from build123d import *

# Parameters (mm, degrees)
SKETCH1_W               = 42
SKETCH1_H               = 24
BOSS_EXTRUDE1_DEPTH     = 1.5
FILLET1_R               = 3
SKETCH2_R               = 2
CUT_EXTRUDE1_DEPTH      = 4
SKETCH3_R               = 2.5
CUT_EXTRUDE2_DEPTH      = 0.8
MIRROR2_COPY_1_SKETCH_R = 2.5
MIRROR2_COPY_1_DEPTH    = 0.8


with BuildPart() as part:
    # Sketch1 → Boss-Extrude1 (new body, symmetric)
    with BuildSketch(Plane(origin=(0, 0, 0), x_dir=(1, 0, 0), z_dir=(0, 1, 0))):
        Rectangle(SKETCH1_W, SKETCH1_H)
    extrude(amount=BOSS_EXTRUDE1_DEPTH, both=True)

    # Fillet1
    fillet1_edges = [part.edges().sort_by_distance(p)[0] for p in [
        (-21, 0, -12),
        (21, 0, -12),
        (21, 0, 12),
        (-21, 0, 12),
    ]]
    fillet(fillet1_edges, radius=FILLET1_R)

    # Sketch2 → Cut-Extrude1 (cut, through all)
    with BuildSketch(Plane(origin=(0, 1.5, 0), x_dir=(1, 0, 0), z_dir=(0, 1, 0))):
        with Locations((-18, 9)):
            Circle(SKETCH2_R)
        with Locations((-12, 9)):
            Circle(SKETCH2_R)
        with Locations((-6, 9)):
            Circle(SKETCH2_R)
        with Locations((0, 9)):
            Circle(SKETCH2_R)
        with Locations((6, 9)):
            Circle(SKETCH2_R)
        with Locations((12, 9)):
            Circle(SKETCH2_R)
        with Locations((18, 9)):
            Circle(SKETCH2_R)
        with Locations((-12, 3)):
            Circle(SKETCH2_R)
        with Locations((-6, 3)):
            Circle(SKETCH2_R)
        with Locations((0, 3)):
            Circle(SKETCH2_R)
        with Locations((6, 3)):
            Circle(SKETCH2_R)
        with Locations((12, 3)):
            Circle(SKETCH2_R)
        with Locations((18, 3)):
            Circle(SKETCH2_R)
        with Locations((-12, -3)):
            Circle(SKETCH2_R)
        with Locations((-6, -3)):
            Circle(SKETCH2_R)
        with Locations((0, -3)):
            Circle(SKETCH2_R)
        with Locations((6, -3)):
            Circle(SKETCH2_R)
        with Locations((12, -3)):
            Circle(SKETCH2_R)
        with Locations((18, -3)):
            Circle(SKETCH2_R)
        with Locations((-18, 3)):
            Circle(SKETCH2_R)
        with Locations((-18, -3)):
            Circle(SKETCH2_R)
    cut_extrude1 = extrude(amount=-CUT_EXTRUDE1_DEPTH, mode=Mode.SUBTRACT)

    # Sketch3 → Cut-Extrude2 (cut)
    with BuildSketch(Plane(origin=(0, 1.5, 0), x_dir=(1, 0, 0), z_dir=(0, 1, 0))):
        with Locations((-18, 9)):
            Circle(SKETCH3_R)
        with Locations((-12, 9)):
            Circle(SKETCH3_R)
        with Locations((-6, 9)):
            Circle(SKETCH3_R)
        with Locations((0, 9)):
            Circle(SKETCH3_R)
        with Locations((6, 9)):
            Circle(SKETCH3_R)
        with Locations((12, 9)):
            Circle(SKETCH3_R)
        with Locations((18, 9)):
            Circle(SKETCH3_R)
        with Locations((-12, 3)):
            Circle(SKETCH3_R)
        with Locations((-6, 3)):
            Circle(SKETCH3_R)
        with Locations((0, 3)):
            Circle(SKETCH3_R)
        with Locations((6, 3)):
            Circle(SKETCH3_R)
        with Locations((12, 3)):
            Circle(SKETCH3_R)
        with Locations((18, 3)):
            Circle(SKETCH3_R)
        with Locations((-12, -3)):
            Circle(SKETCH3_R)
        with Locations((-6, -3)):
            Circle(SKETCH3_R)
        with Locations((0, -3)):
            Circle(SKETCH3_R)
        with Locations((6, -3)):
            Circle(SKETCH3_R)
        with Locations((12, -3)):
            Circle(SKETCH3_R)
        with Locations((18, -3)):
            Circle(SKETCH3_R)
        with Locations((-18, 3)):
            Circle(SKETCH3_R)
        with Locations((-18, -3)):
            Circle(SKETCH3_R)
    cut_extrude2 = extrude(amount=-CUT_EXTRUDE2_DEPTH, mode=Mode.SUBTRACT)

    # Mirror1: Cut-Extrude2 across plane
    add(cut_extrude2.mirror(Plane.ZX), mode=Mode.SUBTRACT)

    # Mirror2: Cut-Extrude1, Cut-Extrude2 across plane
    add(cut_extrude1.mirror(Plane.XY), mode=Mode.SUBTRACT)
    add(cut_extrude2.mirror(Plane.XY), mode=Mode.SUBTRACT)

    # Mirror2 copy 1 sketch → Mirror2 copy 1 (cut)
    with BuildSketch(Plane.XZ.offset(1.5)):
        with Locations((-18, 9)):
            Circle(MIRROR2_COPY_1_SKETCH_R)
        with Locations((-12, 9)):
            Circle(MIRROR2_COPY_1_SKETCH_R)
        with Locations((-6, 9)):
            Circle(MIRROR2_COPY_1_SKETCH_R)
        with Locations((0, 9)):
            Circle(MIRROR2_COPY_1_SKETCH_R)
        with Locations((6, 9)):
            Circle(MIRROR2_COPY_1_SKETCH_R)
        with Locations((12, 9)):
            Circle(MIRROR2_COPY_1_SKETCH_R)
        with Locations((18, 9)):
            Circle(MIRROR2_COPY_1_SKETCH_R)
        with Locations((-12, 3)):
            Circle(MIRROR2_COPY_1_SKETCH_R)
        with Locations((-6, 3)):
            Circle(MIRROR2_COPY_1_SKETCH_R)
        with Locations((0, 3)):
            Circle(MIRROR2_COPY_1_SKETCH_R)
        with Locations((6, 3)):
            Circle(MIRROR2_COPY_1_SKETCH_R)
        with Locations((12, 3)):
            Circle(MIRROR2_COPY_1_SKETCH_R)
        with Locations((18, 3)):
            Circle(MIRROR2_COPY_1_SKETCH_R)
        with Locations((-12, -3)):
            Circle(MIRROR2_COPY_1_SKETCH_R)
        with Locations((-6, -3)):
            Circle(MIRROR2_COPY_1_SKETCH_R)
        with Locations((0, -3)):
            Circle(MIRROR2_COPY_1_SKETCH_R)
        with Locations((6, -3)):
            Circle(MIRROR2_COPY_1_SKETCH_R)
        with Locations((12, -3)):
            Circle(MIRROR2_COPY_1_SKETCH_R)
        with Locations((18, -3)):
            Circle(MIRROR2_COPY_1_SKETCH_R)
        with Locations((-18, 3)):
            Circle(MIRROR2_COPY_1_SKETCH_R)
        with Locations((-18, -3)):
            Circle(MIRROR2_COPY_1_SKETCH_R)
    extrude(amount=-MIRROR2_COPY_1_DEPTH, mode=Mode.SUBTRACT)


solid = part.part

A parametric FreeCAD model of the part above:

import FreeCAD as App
import Part
import Sketcher
Q = App.Units.Quantity


def edges_at(feature, points):
    """Names of the edges that pass closest to the given points."""
    edges = feature.Shape.Edges
    near = lambda p: min(range(len(edges)), key=lambda i: edges[i].distToShape(Part.Vertex(*p))[0])
    return sorted({f"Edge{near(p) + 1}" for p in points})

doc = App.newDocument("Part")
body = doc.addObject("PartDesign::Body", "Body")

sketch1 = doc.addObject("Sketcher::SketchObject", "Sketch")
body.addObject(sketch1)
sketch1.AttachmentSupport = (doc.XZ_Plane, [""])
sketch1.MapMode = "FlatFace"
sketch1.addGeometry([
    Part.LineSegment(App.Vector(-21, -12, 0), App.Vector(-21, 12, 0)),
    Part.LineSegment(App.Vector(-21, 12, 0), App.Vector(21, 12, 0)),
    Part.LineSegment(App.Vector(21, 12, 0), App.Vector(21, -12, 0)),
    Part.LineSegment(App.Vector(21, -12, 0), App.Vector(-21, -12, 0)),
], False)
sketch1.addConstraint([
    Sketcher.Constraint("Coincident", 0, 2, 1, 1),
    Sketcher.Constraint("Coincident", 1, 2, 2, 1),
    Sketcher.Constraint("Coincident", 2, 2, 3, 1),
    Sketcher.Constraint("Coincident", 3, 2, 0, 1),
    Sketcher.Constraint("Vertical", 0),
    Sketcher.Constraint("Horizontal", 1),
    Sketcher.Constraint("Vertical", 2),
    Sketcher.Constraint("Horizontal", 3),
    Sketcher.Constraint("Symmetric", 0, 2, 2, 2, -1, 1),
    Sketcher.Constraint("DistanceX", 1, 1, 1, 2, Q("42 mm")),
    Sketcher.Constraint("DistanceY", 0, 1, 0, 2, Q("24 mm")),
])
pad1 = doc.addObject("PartDesign::Pad", "Pad")
body.addObject(pad1)
pad1.Profile = sketch1
pad1.Length = 3
pad1.Midplane = True
doc.recompute()

fillet = doc.addObject("PartDesign::Fillet", "Fillet")
body.addObject(fillet)
fillet.Base = (pad1, edges_at(pad1, [
    (-21, 0, -12),
    (21, 0, -12),
    (21, 0, 12),
    (-21, 0, 12),
]))
fillet.Radius = 3

sketch2 = doc.addObject("Sketcher::SketchObject", "Sketch001")
body.addObject(sketch2)
sketch2.AttachmentSupport = (doc.XZ_Plane, [""])
sketch2.MapMode = "FlatFace"
sketch2.AttachmentOffset = App.Placement(App.Vector(0, 0, -1.5), App.Rotation())
sketch2.addGeometry([
    Part.Circle(App.Vector(-18, -9, 0), App.Vector(0, 0, 1), 2),
    Part.Circle(App.Vector(-12, -9, 0), App.Vector(0, 0, 1), 2),
    Part.Circle(App.Vector(-6, -9, 0), App.Vector(0, 0, 1), 2),
    Part.Circle(App.Vector(0, -9, 0), App.Vector(0, 0, 1), 2),
    Part.Circle(App.Vector(6, -9, 0), App.Vector(0, 0, 1), 2),
    Part.Circle(App.Vector(12, -9, 0), App.Vector(0, 0, 1), 2),
    Part.Circle(App.Vector(18, -9, 0), App.Vector(0, 0, 1), 2),
    Part.Circle(App.Vector(-12, -3, 0), App.Vector(0, 0, 1), 2),
    Part.Circle(App.Vector(-6, -3, 0), App.Vector(0, 0, 1), 2),
    Part.Circle(App.Vector(0, -3, 0), App.Vector(0, 0, 1), 2),
    Part.Circle(App.Vector(6, -3, 0), App.Vector(0, 0, 1), 2),
    Part.Circle(App.Vector(12, -3, 0), App.Vector(0, 0, 1), 2),
    Part.Circle(App.Vector(18, -3, 0), App.Vector(0, 0, 1), 2),
    Part.Circle(App.Vector(-12, 3, 0), App.Vector(0, 0, 1), 2),
    Part.Circle(App.Vector(-6, 3, 0), App.Vector(0, 0, 1), 2),
    Part.Circle(App.Vector(0, 3, 0), App.Vector(0, 0, 1), 2),
    Part.Circle(App.Vector(6, 3, 0), App.Vector(0, 0, 1), 2),
    Part.Circle(App.Vector(12, 3, 0), App.Vector(0, 0, 1), 2),
    Part.Circle(App.Vector(18, 3, 0), App.Vector(0, 0, 1), 2),
    Part.Circle(App.Vector(-18, -3, 0), App.Vector(0, 0, 1), 2),
    Part.Circle(App.Vector(-18, 3, 0), App.Vector(0, 0, 1), 2),
], False)
sketch2.addConstraint([
    Sketcher.Constraint("Equal", 0, 1),
    Sketcher.Constraint("Equal", 1, 2),
    Sketcher.Constraint("Equal", 2, 3),
    Sketcher.Constraint("Equal", 3, 4),
    Sketcher.Constraint("Equal", 4, 5),
    Sketcher.Constraint("Equal", 5, 6),
    Sketcher.Constraint("Equal", 6, 7),
    Sketcher.Constraint("Equal", 7, 8),
    Sketcher.Constraint("Equal", 8, 9),
    Sketcher.Constraint("Equal", 9, 10),
    Sketcher.Constraint("Equal", 10, 11),
    Sketcher.Constraint("Equal", 11, 12),
    Sketcher.Constraint("Equal", 12, 13),
    Sketcher.Constraint("Equal", 13, 14),
    Sketcher.Constraint("Equal", 14, 15),
    Sketcher.Constraint("Equal", 15, 16),
    Sketcher.Constraint("Equal", 16, 17),
    Sketcher.Constraint("Equal", 17, 18),
    Sketcher.Constraint("Equal", 18, 19),
    Sketcher.Constraint("Equal", 19, 20),
    Sketcher.Constraint("Symmetric", 11, 3, 13, 3, -1, 1),
    Sketcher.Constraint("Symmetric", 10, 3, 14, 3, -1, 1),
    Sketcher.Constraint("Symmetric", 9, 3, 15, 3, -1, 1),
    Sketcher.Constraint("Symmetric", 8, 3, 16, 3, -1, 1),
    Sketcher.Constraint("Symmetric", 7, 3, 17, 3, -1, 1),
    Sketcher.Constraint("Symmetric", 18, 3, 19, 3, -1, 1),
    Sketcher.Constraint("Symmetric", 12, 3, 20, 3, -1, 1),
    Sketcher.Constraint("Symmetric", 2, 3, 4, 3, -2),
    Sketcher.Constraint("Symmetric", 1, 3, 5, 3, -2),
    Sketcher.Constraint("Symmetric", 0, 3, 6, 3, -2),
    Sketcher.Constraint("Symmetric", 8, 3, 10, 3, -2),
    Sketcher.Constraint("Symmetric", 7, 3, 11, 3, -2),
    Sketcher.Constraint("Symmetric", 12, 3, 19, 3, -2),
    Sketcher.Constraint("PointOnObject", 3, 3, -2),
    Sketcher.Constraint("PointOnObject", 9, 3, -2),
    Sketcher.Constraint("Horizontal", 0, 3, 1, 3),
    Sketcher.Constraint("Horizontal", 1, 3, 2, 3),
    Sketcher.Constraint("Horizontal", 2, 3, 3, 3),
    Sketcher.Constraint("Horizontal", 7, 3, 8, 3),
    Sketcher.Constraint("Horizontal", 8, 3, 9, 3),
    Sketcher.Constraint("Horizontal", 11, 3, 12, 3),
    Sketcher.Constraint("Vertical", 1, 3, 7, 3),
    Sketcher.Constraint("Vertical", 2, 3, 8, 3),
    Sketcher.Constraint("Vertical", 6, 3, 12, 3),
    Sketcher.Constraint("Diameter", 0, Q("4 mm")),
    Sketcher.Constraint("DistanceX", 0, 3, -1, 1, Q("18 mm")),
    Sketcher.Constraint("DistanceY", 0, 3, -1, 1, Q("9 mm")),
    Sketcher.Constraint("DistanceX", 1, 3, -1, 1, Q("12 mm")),
    Sketcher.Constraint("DistanceX", 2, 3, -1, 1, Q("6 mm")),
    Sketcher.Constraint("DistanceY", 7, 3, -1, 1, Q("3 mm")),
])
pocket1 = doc.addObject("PartDesign::Pocket", "Pocket")
body.addObject(pocket1)
pocket1.Profile = sketch2
pocket1.Type = "ThroughAll"
pocket1.Reversed = True

sketch3 = doc.addObject("Sketcher::SketchObject", "Sketch002")
body.addObject(sketch3)
sketch3.AttachmentSupport = (doc.XZ_Plane, [""])
sketch3.MapMode = "FlatFace"
sketch3.AttachmentOffset = App.Placement(App.Vector(0, 0, -1.5), App.Rotation())
sketch3.addGeometry([
    Part.Circle(App.Vector(-18, -9, 0), App.Vector(0, 0, 1), 2.5),
    Part.Circle(App.Vector(-12, -9, 0), App.Vector(0, 0, 1), 2.5),
    Part.Circle(App.Vector(-6, -9, 0), App.Vector(0, 0, 1), 2.5),
    Part.Circle(App.Vector(0, -9, 0), App.Vector(0, 0, 1), 2.5),
    Part.Circle(App.Vector(6, -9, 0), App.Vector(0, 0, 1), 2.5),
    Part.Circle(App.Vector(12, -9, 0), App.Vector(0, 0, 1), 2.5),
    Part.Circle(App.Vector(18, -9, 0), App.Vector(0, 0, 1), 2.5),
    Part.Circle(App.Vector(-12, -3, 0), App.Vector(0, 0, 1), 2.5),
    Part.Circle(App.Vector(-6, -3, 0), App.Vector(0, 0, 1), 2.5),
    Part.Circle(App.Vector(0, -3, 0), App.Vector(0, 0, 1), 2.5),
    Part.Circle(App.Vector(6, -3, 0), App.Vector(0, 0, 1), 2.5),
    Part.Circle(App.Vector(12, -3, 0), App.Vector(0, 0, 1), 2.5),
    Part.Circle(App.Vector(18, -3, 0), App.Vector(0, 0, 1), 2.5),
    Part.Circle(App.Vector(-12, 3, 0), App.Vector(0, 0, 1), 2.5),
    Part.Circle(App.Vector(-6, 3, 0), App.Vector(0, 0, 1), 2.5),
    Part.Circle(App.Vector(0, 3, 0), App.Vector(0, 0, 1), 2.5),
    Part.Circle(App.Vector(6, 3, 0), App.Vector(0, 0, 1), 2.5),
    Part.Circle(App.Vector(12, 3, 0), App.Vector(0, 0, 1), 2.5),
    Part.Circle(App.Vector(18, 3, 0), App.Vector(0, 0, 1), 2.5),
    Part.Circle(App.Vector(-18, -3, 0), App.Vector(0, 0, 1), 2.5),
    Part.Circle(App.Vector(-18, 3, 0), App.Vector(0, 0, 1), 2.5),
], False)
sketch3.addConstraint([
    Sketcher.Constraint("Equal", 0, 1),
    Sketcher.Constraint("Equal", 1, 2),
    Sketcher.Constraint("Equal", 2, 3),
    Sketcher.Constraint("Equal", 3, 4),
    Sketcher.Constraint("Equal", 4, 5),
    Sketcher.Constraint("Equal", 5, 6),
    Sketcher.Constraint("Equal", 6, 7),
    Sketcher.Constraint("Equal", 7, 8),
    Sketcher.Constraint("Equal", 8, 9),
    Sketcher.Constraint("Equal", 9, 10),
    Sketcher.Constraint("Equal", 10, 11),
    Sketcher.Constraint("Equal", 11, 12),
    Sketcher.Constraint("Equal", 12, 13),
    Sketcher.Constraint("Equal", 13, 14),
    Sketcher.Constraint("Equal", 14, 15),
    Sketcher.Constraint("Equal", 15, 16),
    Sketcher.Constraint("Equal", 16, 17),
    Sketcher.Constraint("Equal", 17, 18),
    Sketcher.Constraint("Equal", 18, 19),
    Sketcher.Constraint("Equal", 19, 20),
    Sketcher.Constraint("Symmetric", 11, 3, 13, 3, -1, 1),
    Sketcher.Constraint("Symmetric", 10, 3, 14, 3, -1, 1),
    Sketcher.Constraint("Symmetric", 9, 3, 15, 3, -1, 1),
    Sketcher.Constraint("Symmetric", 8, 3, 16, 3, -1, 1),
    Sketcher.Constraint("Symmetric", 7, 3, 17, 3, -1, 1),
    Sketcher.Constraint("Symmetric", 18, 3, 19, 3, -1, 1),
    Sketcher.Constraint("Symmetric", 12, 3, 20, 3, -1, 1),
    Sketcher.Constraint("Symmetric", 2, 3, 4, 3, -2),
    Sketcher.Constraint("Symmetric", 1, 3, 5, 3, -2),
    Sketcher.Constraint("Symmetric", 0, 3, 6, 3, -2),
    Sketcher.Constraint("Symmetric", 8, 3, 10, 3, -2),
    Sketcher.Constraint("Symmetric", 7, 3, 11, 3, -2),
    Sketcher.Constraint("Symmetric", 12, 3, 19, 3, -2),
    Sketcher.Constraint("PointOnObject", 3, 3, -2),
    Sketcher.Constraint("PointOnObject", 9, 3, -2),
    Sketcher.Constraint("Horizontal", 0, 3, 1, 3),
    Sketcher.Constraint("Horizontal", 1, 3, 2, 3),
    Sketcher.Constraint("Horizontal", 2, 3, 3, 3),
    Sketcher.Constraint("Horizontal", 7, 3, 8, 3),
    Sketcher.Constraint("Horizontal", 8, 3, 9, 3),
    Sketcher.Constraint("Horizontal", 11, 3, 12, 3),
    Sketcher.Constraint("Vertical", 1, 3, 7, 3),
    Sketcher.Constraint("Vertical", 2, 3, 8, 3),
    Sketcher.Constraint("Vertical", 6, 3, 12, 3),
    Sketcher.Constraint("Diameter", 0, Q("5 mm")),
    Sketcher.Constraint("DistanceX", 0, 3, -1, 1, Q("18 mm")),
    Sketcher.Constraint("DistanceY", 0, 3, -1, 1, Q("9 mm")),
    Sketcher.Constraint("DistanceX", 1, 3, -1, 1, Q("12 mm")),
    Sketcher.Constraint("DistanceX", 2, 3, -1, 1, Q("6 mm")),
    Sketcher.Constraint("DistanceY", 7, 3, -1, 1, Q("3 mm")),
])
pocket2 = doc.addObject("PartDesign::Pocket", "Pocket001")
body.addObject(pocket2)
pocket2.Profile = sketch3
pocket2.Length = 0.8
pocket2.Reversed = True
doc.recompute()

mirrored = doc.addObject("PartDesign::Mirrored", "Mirrored")
body.addObject(mirrored)
mirrored.Originals = [pocket2]
mirrored.MirrorPlane = (doc.XZ_Plane, [""])
body.Tip = mirrored
doc.recompute()

mirrored2 = doc.addObject("PartDesign::Mirrored", "Mirrored001")
body.addObject(mirrored2)
mirrored2.Originals = [pocket1, pocket2]
mirrored2.MirrorPlane = (doc.XY_Plane, [""])
body.Tip = mirrored2

sketch4 = doc.addObject("Sketcher::SketchObject", "Sketch003")
body.addObject(sketch4)
sketch4.AttachmentSupport = (doc.XZ_Plane, [""])
sketch4.MapMode = "FlatFace"
sketch4.AttachmentOffset = App.Placement(App.Vector(0, 0, 1.5), App.Rotation())
sketch4.addGeometry([
    Part.Circle(App.Vector(-18, 9, 0), App.Vector(0, 0, 1), 2.5),
    Part.Circle(App.Vector(-12, 9, 0), App.Vector(0, 0, 1), 2.5),
    Part.Circle(App.Vector(-6, 9, 0), App.Vector(0, 0, 1), 2.5),
    Part.Circle(App.Vector(0, 9, 0), App.Vector(0, 0, 1), 2.5),
    Part.Circle(App.Vector(6, 9, 0), App.Vector(0, 0, 1), 2.5),
    Part.Circle(App.Vector(12, 9, 0), App.Vector(0, 0, 1), 2.5),
    Part.Circle(App.Vector(18, 9, 0), App.Vector(0, 0, 1), 2.5),
    Part.Circle(App.Vector(-12, 3, 0), App.Vector(0, 0, 1), 2.5),
    Part.Circle(App.Vector(-6, 3, 0), App.Vector(0, 0, 1), 2.5),
    Part.Circle(App.Vector(0, 3, 0), App.Vector(0, 0, 1), 2.5),
    Part.Circle(App.Vector(6, 3, 0), App.Vector(0, 0, 1), 2.5),
    Part.Circle(App.Vector(12, 3, 0), App.Vector(0, 0, 1), 2.5),
    Part.Circle(App.Vector(18, 3, 0), App.Vector(0, 0, 1), 2.5),
    Part.Circle(App.Vector(-12, -3, 0), App.Vector(0, 0, 1), 2.5),
    Part.Circle(App.Vector(-6, -3, 0), App.Vector(0, 0, 1), 2.5),
    Part.Circle(App.Vector(0, -3, 0), App.Vector(0, 0, 1), 2.5),
    Part.Circle(App.Vector(6, -3, 0), App.Vector(0, 0, 1), 2.5),
    Part.Circle(App.Vector(12, -3, 0), App.Vector(0, 0, 1), 2.5),
    Part.Circle(App.Vector(18, -3, 0), App.Vector(0, 0, 1), 2.5),
    Part.Circle(App.Vector(-18, 3, 0), App.Vector(0, 0, 1), 2.5),
    Part.Circle(App.Vector(-18, -3, 0), App.Vector(0, 0, 1), 2.5),
], False)
sketch4.addConstraint([
    Sketcher.Constraint("Equal", 0, 1),
    Sketcher.Constraint("Equal", 1, 2),
    Sketcher.Constraint("Equal", 2, 3),
    Sketcher.Constraint("Equal", 3, 4),
    Sketcher.Constraint("Equal", 4, 5),
    Sketcher.Constraint("Equal", 5, 6),
    Sketcher.Constraint("Equal", 6, 7),
    Sketcher.Constraint("Equal", 7, 8),
    Sketcher.Constraint("Equal", 8, 9),
    Sketcher.Constraint("Equal", 9, 10),
    Sketcher.Constraint("Equal", 10, 11),
    Sketcher.Constraint("Equal", 11, 12),
    Sketcher.Constraint("Equal", 12, 13),
    Sketcher.Constraint("Equal", 13, 14),
    Sketcher.Constraint("Equal", 14, 15),
    Sketcher.Constraint("Equal", 15, 16),
    Sketcher.Constraint("Equal", 16, 17),
    Sketcher.Constraint("Equal", 17, 18),
    Sketcher.Constraint("Equal", 18, 19),
    Sketcher.Constraint("Equal", 19, 20),
    Sketcher.Constraint("Symmetric", 11, 3, 13, 3, -1, 1),
    Sketcher.Constraint("Symmetric", 10, 3, 14, 3, -1, 1),
    Sketcher.Constraint("Symmetric", 9, 3, 15, 3, -1, 1),
    Sketcher.Constraint("Symmetric", 8, 3, 16, 3, -1, 1),
    Sketcher.Constraint("Symmetric", 7, 3, 17, 3, -1, 1),
    Sketcher.Constraint("Symmetric", 18, 3, 19, 3, -1, 1),
    Sketcher.Constraint("Symmetric", 12, 3, 20, 3, -1, 1),
    Sketcher.Constraint("Symmetric", 2, 3, 4, 3, -2),
    Sketcher.Constraint("Symmetric", 1, 3, 5, 3, -2),
    Sketcher.Constraint("Symmetric", 0, 3, 6, 3, -2),
    Sketcher.Constraint("Symmetric", 8, 3, 10, 3, -2),
    Sketcher.Constraint("Symmetric", 7, 3, 11, 3, -2),
    Sketcher.Constraint("Symmetric", 12, 3, 19, 3, -2),
    Sketcher.Constraint("PointOnObject", 3, 3, -2),
    Sketcher.Constraint("PointOnObject", 9, 3, -2),
    Sketcher.Constraint("Horizontal", 0, 3, 1, 3),
    Sketcher.Constraint("Horizontal", 1, 3, 2, 3),
    Sketcher.Constraint("Horizontal", 2, 3, 3, 3),
    Sketcher.Constraint("Horizontal", 7, 3, 8, 3),
    Sketcher.Constraint("Horizontal", 8, 3, 9, 3),
    Sketcher.Constraint("Horizontal", 11, 3, 12, 3),
    Sketcher.Constraint("Vertical", 1, 3, 7, 3),
    Sketcher.Constraint("Vertical", 2, 3, 8, 3),
    Sketcher.Constraint("Vertical", 6, 3, 12, 3),
    Sketcher.Constraint("Diameter", 0, Q("5 mm")),
    Sketcher.Constraint("DistanceX", 0, 3, -1, 1, Q("18 mm")),
    Sketcher.Constraint("DistanceY", -1, 1, 0, 3, Q("9 mm")),
    Sketcher.Constraint("DistanceX", 1, 3, -1, 1, Q("12 mm")),
    Sketcher.Constraint("DistanceX", 2, 3, -1, 1, Q("6 mm")),
    Sketcher.Constraint("DistanceY", -1, 1, 7, 3, Q("3 mm")),
])
pocket3 = doc.addObject("PartDesign::Pocket", "Pocket002")
body.addObject(pocket3)
pocket3.Profile = sketch4
pocket3.Length = 0.8

doc.recompute()
